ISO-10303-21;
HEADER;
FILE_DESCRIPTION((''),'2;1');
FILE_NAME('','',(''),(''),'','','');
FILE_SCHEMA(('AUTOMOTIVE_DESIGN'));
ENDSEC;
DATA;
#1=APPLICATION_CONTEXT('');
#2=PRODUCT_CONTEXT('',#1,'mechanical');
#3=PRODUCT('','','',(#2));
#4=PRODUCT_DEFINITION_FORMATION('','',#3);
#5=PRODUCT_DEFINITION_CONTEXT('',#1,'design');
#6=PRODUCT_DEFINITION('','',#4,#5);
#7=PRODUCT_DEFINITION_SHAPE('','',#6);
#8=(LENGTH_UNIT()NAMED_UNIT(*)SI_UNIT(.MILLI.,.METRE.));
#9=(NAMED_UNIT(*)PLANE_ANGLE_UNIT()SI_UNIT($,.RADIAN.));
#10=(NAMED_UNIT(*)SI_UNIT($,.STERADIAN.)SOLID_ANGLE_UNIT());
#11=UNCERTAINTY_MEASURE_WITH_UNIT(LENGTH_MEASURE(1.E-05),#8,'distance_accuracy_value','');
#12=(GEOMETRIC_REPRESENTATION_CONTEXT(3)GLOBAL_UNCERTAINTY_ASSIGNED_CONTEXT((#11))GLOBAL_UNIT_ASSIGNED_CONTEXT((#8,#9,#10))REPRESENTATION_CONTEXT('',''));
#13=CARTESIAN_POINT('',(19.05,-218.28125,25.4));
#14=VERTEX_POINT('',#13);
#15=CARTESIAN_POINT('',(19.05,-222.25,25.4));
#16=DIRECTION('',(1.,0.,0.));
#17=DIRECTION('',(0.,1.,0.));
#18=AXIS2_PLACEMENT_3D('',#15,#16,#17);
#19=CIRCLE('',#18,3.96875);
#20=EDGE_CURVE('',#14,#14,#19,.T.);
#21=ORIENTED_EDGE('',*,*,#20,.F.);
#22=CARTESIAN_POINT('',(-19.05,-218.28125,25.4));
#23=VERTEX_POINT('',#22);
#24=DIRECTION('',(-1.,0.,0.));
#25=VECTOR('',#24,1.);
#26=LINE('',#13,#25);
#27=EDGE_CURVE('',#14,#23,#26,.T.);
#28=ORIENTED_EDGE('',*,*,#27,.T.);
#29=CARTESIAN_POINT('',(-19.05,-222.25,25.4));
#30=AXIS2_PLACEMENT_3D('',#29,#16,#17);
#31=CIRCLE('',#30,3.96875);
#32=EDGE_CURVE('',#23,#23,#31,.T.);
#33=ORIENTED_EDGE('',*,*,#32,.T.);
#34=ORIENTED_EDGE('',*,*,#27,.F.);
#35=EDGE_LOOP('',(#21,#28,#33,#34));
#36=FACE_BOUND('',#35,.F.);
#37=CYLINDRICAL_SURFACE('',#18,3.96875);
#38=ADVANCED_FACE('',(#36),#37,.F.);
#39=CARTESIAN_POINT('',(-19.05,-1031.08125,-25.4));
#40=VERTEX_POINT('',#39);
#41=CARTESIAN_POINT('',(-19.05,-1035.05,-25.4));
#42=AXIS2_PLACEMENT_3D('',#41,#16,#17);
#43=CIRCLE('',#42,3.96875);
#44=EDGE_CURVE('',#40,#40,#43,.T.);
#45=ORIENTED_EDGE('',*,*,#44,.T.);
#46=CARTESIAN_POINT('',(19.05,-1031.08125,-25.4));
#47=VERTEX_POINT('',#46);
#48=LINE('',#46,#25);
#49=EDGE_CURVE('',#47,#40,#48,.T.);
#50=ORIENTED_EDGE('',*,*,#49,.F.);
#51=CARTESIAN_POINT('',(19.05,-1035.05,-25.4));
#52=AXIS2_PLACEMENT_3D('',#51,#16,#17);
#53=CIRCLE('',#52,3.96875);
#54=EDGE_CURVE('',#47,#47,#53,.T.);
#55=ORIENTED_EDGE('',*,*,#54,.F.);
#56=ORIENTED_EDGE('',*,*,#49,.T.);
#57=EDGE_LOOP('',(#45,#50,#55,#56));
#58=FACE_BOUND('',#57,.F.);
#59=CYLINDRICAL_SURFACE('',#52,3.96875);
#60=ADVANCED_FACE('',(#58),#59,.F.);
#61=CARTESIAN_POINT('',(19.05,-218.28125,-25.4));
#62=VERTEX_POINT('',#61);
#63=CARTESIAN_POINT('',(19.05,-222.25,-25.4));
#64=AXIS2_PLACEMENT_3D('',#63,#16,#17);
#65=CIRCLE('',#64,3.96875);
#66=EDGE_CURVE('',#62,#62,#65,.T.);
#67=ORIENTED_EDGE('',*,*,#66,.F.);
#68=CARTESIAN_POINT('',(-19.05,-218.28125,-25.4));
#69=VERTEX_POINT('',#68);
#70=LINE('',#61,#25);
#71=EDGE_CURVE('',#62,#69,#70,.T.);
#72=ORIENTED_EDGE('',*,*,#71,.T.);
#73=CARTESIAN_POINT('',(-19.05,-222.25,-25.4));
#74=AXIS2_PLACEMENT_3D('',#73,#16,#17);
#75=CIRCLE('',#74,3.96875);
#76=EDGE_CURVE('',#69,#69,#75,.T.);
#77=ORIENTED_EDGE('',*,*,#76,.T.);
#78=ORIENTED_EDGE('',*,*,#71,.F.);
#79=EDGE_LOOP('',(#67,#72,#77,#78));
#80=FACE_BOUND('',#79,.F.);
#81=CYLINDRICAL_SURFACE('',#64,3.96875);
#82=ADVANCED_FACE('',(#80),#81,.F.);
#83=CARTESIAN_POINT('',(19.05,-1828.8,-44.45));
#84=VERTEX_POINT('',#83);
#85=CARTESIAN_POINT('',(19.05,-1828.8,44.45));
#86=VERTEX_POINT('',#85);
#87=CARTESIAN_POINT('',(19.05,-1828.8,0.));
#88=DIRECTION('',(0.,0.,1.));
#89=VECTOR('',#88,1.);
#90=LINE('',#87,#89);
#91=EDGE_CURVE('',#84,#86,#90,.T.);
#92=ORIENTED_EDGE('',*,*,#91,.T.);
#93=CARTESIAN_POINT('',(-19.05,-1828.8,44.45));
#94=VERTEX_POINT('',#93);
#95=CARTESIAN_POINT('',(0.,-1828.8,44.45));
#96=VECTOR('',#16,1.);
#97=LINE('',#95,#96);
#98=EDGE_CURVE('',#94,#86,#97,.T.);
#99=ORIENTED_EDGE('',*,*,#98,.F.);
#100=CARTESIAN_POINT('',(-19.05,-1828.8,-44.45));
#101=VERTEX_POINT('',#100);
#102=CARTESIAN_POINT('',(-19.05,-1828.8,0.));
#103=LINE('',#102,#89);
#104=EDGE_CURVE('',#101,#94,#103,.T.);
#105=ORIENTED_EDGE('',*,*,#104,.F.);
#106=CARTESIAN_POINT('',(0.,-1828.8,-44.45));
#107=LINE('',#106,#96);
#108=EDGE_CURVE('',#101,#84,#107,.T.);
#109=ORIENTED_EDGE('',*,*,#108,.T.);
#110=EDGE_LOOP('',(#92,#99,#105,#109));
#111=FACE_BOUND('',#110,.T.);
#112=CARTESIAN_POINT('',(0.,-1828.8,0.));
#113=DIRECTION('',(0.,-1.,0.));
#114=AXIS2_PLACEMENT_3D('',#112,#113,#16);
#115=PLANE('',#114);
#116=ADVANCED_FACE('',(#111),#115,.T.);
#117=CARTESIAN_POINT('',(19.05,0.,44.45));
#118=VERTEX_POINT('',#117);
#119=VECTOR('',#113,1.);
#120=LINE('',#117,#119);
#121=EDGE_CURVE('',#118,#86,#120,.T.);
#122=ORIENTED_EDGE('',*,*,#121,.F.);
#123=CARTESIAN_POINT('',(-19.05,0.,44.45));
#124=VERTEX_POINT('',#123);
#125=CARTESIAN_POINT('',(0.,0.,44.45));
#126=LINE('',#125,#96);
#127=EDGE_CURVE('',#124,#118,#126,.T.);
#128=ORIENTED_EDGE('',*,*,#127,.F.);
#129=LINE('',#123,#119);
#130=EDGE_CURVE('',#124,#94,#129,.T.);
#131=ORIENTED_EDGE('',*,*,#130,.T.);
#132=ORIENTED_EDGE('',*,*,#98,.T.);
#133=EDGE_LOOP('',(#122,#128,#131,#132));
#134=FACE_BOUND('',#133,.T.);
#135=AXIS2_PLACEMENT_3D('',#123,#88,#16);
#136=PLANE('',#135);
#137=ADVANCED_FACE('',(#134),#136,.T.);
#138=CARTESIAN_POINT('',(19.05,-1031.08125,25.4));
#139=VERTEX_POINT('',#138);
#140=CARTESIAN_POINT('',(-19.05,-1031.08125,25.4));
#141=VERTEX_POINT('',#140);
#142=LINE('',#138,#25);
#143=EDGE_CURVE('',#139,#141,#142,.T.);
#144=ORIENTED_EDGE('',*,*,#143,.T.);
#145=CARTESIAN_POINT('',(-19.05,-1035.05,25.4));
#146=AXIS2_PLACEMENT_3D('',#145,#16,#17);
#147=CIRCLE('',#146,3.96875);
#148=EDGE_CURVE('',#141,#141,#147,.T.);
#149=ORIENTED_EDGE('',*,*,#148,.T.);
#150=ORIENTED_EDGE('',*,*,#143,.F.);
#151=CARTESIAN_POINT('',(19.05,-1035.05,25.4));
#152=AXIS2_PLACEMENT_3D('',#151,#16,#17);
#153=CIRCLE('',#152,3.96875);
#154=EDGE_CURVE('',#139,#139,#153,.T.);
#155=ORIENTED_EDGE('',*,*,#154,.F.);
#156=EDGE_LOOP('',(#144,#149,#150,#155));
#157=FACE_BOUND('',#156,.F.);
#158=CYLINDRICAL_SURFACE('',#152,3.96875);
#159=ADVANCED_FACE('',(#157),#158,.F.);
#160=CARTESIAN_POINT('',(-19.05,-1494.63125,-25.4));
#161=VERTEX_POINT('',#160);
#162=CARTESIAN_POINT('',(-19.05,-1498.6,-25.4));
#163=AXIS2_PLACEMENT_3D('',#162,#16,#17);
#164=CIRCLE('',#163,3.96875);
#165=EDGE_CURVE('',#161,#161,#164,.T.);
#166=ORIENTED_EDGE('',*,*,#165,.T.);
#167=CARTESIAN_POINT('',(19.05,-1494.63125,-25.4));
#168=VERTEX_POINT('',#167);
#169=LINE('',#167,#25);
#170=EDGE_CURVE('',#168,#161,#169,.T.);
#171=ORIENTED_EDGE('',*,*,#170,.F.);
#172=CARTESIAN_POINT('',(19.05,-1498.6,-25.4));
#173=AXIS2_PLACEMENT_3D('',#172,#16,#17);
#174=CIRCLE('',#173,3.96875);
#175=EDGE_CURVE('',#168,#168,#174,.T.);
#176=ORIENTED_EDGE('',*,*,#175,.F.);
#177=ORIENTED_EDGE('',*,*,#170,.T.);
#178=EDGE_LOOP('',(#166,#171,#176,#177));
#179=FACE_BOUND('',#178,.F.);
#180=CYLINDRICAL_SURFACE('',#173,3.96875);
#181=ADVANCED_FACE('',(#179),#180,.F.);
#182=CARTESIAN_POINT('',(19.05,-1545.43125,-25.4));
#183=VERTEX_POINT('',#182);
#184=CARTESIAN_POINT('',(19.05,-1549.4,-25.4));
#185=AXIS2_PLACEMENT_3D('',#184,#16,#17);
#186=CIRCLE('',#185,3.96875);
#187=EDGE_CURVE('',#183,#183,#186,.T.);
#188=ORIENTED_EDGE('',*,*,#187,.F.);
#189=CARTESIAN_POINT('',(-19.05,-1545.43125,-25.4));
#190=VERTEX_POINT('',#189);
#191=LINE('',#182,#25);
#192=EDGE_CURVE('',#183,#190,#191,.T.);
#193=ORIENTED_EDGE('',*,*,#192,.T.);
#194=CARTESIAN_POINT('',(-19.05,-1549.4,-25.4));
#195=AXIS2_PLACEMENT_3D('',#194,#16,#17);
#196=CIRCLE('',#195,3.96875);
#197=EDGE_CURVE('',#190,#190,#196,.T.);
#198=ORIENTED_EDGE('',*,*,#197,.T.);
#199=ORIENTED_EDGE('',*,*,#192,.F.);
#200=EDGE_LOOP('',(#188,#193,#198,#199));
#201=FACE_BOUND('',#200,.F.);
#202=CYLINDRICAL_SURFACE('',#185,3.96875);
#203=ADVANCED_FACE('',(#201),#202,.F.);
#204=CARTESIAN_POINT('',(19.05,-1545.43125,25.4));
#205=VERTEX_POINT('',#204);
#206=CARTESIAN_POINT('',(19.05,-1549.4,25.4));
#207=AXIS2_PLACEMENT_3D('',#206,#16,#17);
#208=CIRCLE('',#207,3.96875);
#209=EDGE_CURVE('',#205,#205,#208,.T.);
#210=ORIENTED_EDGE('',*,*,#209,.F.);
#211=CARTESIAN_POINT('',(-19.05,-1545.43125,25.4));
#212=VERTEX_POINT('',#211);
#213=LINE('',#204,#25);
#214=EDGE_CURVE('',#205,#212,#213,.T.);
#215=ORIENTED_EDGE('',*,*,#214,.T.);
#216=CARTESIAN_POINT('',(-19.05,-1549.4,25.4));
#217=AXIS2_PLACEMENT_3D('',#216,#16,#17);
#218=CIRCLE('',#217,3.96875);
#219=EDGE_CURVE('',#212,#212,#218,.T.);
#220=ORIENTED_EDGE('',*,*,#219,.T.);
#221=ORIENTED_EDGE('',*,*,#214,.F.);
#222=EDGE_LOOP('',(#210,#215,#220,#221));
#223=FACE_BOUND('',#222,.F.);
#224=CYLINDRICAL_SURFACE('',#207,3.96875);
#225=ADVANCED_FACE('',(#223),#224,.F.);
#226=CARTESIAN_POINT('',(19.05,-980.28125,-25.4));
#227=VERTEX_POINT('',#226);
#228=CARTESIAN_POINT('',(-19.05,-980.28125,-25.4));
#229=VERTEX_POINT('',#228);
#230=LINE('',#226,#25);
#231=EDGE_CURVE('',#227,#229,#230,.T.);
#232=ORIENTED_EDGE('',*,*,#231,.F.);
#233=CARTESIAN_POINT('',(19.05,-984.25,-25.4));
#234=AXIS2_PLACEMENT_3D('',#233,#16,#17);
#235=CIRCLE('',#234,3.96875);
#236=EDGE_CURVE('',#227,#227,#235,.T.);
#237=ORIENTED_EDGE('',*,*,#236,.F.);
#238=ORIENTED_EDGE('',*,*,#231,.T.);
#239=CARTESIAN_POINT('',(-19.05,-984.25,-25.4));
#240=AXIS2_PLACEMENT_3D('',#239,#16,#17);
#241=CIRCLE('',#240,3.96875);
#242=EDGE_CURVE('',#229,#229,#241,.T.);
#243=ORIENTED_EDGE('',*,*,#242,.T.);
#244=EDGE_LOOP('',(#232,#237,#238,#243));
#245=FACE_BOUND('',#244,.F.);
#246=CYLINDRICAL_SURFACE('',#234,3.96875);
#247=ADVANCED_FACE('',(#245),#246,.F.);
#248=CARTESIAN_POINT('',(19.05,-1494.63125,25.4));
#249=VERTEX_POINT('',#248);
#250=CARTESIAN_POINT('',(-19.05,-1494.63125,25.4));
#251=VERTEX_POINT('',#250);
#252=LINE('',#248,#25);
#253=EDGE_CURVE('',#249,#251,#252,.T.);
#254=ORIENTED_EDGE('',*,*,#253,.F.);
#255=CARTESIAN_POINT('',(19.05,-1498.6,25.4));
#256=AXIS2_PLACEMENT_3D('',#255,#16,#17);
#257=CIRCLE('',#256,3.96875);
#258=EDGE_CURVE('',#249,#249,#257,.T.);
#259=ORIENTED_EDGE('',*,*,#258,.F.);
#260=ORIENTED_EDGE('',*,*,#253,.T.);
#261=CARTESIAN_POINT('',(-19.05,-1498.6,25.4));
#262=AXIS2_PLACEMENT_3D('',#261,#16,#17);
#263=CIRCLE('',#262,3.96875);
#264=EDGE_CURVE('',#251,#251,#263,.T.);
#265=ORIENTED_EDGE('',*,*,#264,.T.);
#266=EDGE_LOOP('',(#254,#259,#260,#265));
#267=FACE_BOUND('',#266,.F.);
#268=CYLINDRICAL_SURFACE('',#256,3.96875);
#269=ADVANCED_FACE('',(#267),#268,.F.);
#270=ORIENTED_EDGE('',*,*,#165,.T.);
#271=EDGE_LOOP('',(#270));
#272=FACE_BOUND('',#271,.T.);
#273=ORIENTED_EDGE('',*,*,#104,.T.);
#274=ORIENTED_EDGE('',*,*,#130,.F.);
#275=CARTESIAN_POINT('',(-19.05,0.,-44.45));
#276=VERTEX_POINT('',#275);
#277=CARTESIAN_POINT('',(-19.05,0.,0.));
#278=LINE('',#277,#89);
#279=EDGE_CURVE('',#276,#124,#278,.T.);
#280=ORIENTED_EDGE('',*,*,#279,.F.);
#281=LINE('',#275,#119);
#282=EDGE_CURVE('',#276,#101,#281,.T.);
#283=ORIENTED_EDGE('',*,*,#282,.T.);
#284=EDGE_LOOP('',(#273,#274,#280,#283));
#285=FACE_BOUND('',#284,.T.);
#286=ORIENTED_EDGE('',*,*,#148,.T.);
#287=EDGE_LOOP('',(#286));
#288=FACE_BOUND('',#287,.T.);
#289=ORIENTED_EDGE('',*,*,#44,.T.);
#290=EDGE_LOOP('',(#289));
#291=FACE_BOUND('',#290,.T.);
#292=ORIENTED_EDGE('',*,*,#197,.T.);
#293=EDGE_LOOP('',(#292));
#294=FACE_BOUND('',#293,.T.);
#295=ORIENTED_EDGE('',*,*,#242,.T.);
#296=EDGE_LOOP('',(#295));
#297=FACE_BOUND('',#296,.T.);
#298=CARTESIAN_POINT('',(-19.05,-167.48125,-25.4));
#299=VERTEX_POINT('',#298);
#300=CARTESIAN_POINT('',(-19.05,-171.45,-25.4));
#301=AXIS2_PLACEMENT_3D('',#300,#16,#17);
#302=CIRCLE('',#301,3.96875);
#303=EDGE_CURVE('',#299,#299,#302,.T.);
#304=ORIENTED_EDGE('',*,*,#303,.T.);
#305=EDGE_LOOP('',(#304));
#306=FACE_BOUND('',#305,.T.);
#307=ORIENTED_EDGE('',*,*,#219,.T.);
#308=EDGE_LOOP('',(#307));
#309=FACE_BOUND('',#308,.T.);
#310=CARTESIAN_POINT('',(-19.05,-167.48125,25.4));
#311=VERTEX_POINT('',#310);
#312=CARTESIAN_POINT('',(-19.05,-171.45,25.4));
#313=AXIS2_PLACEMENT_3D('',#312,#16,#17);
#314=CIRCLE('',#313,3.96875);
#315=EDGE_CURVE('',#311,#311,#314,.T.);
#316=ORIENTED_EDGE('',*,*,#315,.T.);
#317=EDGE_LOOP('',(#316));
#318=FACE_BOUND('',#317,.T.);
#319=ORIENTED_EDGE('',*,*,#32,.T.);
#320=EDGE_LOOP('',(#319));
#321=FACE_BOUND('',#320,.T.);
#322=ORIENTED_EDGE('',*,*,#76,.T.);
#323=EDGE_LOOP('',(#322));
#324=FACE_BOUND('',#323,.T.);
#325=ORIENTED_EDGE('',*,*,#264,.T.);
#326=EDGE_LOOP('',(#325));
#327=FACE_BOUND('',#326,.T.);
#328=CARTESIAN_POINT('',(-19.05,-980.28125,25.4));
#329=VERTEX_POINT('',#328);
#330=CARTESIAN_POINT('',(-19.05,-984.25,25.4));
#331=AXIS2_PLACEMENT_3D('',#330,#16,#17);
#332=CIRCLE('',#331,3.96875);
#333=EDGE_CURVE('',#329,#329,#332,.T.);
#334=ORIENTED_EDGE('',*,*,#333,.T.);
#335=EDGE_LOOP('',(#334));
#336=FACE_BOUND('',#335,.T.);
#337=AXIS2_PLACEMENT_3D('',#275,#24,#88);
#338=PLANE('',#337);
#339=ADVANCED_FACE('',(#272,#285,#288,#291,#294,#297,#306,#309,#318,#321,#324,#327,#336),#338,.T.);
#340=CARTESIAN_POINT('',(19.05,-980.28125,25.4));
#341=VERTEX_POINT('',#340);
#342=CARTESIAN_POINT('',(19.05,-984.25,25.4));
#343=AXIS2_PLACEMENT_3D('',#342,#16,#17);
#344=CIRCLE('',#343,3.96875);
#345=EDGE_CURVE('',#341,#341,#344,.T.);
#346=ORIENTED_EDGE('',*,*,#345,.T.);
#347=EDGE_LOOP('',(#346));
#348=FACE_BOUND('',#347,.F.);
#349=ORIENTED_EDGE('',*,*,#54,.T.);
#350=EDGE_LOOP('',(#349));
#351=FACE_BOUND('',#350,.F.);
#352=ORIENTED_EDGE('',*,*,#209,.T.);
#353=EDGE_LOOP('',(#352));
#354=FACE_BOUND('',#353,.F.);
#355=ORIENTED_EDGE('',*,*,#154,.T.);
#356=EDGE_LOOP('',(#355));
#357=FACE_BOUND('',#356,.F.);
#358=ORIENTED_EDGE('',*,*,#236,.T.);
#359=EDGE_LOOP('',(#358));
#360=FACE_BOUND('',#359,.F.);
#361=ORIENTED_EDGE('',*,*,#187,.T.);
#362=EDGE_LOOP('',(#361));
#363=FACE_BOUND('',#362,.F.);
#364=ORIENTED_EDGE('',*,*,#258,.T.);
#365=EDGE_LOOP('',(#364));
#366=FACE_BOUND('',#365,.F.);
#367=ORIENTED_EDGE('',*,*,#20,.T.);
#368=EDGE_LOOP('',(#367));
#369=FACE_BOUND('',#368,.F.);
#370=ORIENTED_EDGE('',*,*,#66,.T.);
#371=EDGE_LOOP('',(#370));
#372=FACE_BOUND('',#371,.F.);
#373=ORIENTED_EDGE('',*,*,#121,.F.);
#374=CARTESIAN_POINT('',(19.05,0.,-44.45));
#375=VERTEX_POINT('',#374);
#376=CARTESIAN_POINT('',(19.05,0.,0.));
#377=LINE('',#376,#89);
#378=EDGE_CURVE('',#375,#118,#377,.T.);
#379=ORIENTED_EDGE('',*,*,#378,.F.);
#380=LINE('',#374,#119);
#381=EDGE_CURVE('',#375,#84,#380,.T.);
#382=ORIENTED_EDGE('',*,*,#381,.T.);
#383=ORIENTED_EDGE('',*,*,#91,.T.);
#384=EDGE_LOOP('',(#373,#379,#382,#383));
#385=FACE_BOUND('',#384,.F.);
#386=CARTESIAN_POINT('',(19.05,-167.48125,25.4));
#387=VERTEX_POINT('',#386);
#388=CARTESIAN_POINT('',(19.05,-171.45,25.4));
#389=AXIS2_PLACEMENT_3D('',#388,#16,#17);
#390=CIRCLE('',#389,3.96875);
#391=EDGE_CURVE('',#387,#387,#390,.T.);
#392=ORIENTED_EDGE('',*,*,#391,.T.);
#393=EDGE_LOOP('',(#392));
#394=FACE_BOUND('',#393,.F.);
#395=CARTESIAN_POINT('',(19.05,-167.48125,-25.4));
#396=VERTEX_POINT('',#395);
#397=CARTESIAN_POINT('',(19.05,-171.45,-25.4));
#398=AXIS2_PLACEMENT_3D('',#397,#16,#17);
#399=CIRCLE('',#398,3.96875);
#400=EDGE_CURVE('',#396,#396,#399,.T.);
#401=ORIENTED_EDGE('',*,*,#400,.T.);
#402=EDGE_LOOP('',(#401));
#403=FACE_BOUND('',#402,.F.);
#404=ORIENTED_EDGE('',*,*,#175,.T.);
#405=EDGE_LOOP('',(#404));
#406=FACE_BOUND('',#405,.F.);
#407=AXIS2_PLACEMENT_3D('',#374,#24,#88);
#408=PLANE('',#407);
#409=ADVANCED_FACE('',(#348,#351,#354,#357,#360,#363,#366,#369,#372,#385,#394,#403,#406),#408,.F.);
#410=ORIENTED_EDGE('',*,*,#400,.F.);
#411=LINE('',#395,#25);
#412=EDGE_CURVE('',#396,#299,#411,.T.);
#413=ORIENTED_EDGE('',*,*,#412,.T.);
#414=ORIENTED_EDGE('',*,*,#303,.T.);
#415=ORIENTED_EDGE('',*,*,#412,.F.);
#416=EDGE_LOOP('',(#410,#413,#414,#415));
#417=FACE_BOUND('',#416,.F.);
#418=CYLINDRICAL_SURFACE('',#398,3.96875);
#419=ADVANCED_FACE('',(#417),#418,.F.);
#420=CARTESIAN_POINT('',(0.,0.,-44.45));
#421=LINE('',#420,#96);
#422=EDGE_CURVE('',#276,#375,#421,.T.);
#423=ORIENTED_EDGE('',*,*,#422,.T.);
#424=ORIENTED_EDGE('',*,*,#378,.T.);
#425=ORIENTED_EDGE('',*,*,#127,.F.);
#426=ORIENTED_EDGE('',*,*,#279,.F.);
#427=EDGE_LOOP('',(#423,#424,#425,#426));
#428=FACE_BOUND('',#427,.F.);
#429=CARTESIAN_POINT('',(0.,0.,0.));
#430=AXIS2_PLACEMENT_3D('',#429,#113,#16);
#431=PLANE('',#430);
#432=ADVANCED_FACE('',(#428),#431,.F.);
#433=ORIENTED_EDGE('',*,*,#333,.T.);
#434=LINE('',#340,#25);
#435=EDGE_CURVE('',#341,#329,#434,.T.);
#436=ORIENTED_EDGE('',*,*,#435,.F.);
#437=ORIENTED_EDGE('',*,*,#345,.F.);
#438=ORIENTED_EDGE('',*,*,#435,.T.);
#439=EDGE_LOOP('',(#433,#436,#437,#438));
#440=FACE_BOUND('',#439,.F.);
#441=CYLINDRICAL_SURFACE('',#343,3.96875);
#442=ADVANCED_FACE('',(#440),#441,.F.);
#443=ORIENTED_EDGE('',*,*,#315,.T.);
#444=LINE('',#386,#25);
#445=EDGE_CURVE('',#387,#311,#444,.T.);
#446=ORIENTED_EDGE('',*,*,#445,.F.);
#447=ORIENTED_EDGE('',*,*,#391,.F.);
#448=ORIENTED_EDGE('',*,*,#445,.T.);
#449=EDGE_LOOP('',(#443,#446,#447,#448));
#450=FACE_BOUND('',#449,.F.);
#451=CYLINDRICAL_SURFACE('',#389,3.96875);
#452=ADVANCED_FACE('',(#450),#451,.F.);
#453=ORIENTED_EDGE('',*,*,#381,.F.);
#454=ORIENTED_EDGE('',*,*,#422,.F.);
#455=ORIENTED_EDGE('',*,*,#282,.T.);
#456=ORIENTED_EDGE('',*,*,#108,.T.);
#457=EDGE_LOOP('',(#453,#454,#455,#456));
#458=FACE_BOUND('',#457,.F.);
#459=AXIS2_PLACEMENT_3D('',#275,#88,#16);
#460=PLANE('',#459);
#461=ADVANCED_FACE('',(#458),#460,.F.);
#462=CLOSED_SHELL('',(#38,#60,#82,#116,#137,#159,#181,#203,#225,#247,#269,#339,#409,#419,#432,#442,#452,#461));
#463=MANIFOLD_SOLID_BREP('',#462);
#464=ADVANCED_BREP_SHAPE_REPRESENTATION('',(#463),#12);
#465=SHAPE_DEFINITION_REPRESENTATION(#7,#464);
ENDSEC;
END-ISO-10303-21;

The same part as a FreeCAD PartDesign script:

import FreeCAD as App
import Part
import Sketcher

V = App.Vector
Q = App.Units.Quantity

doc = App.newDocument("Part")
body = doc.addObject("PartDesign::Body", "Body")

# Sketch on XZ plane
sketch1 = doc.addObject("Sketcher::SketchObject", "Sketch")
body.addObject(sketch1)
sketch1.AttachmentSupport = (doc.XZ_Plane, [""])
sketch1.MapMode = "FlatFace"
sketch1.addGeometry([
    Part.LineSegment(V(-19, 44, 0), V(-19, -44, 0)),
    Part.LineSegment(V(-19, -44, 0), V(19, -44, 0)),
    Part.LineSegment(V(19, -44, 0), V(19, 44, 0)),
    Part.LineSegment(V(19, 44, 0), V(-19, 44, 0)),
], False)
sketch1.addConstraint([
    Sketcher.Constraint("Coincident", 0, 2, 1, 1),
    Sketcher.Constraint("Coincident", 1, 2, 2, 1),
    Sketcher.Constraint("Coincident", 2, 2, 3, 1),
    Sketcher.Constraint("Coincident", 3, 2, 0, 1),
    Sketcher.Constraint("Vertical", 0),
    Sketcher.Constraint("Horizontal", 1),
    Sketcher.Constraint("Vertical", 2),
    Sketcher.Constraint("Horizontal", 3),
    Sketcher.Constraint("Symmetric", 0, 2, 2, 2, -1, 1),
    Sketcher.Constraint("DistanceX", 1, 1, 1, 2, Q("1.5 in")),
    Sketcher.Constraint("DistanceY", 0, 2, 0, 1, Q("3.5 in")),
])
pad1 = doc.addObject("PartDesign::Pad", "Pad")
body.addObject(pad1)
pad1.Profile = sketch1
pad1.Length = Q("72 in")

# Sketch on YZ plane
sketch2 = doc.addObject("Sketcher::SketchObject", "Sketch001")
body.addObject(sketch2)
sketch2.AttachmentSupport = (doc.YZ_Plane, [""])
sketch2.MapMode = "FlatFace"
sketch2.AttachmentOffset = App.Placement(V(0, 0, 0.75 * 25.4), App.Rotation())
sketch2.addGeometry([
    Part.Circle(V(-1498.6, 25.4, 0), V(0, 0, 1), 4),  # 0
    Part.Circle(V(-1498.6, -25.4, 0), V(0, 0, 1), 4),  # 1
    Part.Circle(V(-1549.4, -25.4, 0), V(0, 0, 1), 4),  # 2
    Part.Circle(V(-1549.4, 25.4, 0), V(0, 0, 1), 4),  # 3
    Part.Circle(V(-1035, 25.4, 0), V(0, 0, 1), 4),  # 4
    Part.Circle(V(-1035, -25.4, 0), V(0, 0, 1), 4),  # 5
    Part.Circle(V(-984.2, -25.4, 0), V(0, 0, 1), 4),  # 6
    Part.Circle(V(-984.2, 25.4, 0), V(0, 0, 1), 4),  # 7
    Part.Circle(V(-222.2, 25.4, 0), V(0, 0, 1), 4),  # 8
    Part.Circle(V(-171.4, 25.4, 0), V(0, 0, 1), 4),  # 9
    Part.Circle(V(-171.4, -25.4, 0), V(0, 0, 1), 4),  # 10
    Part.Circle(V(-222.2, -25.4, 0), V(0, 0, 1), 4),  # 11
], False)
sketch2.addConstraint([
    Sketcher.Constraint("Equal", 0, 1),
    Sketcher.Constraint("Equal", 1, 2),
    Sketcher.Constraint("Equal", 2, 3),
    Sketcher.Constraint("Equal", 3, 4),
    Sketcher.Constraint("Equal", 4, 5),
    Sketcher.Constraint("Equal", 5, 6),
    Sketcher.Constraint("Equal", 6, 7),
    Sketcher.Constraint("Equal", 7, 8),
    Sketcher.Constraint("Equal", 8, 9),
    Sketcher.Constraint("Equal", 9, 10),
    Sketcher.Constraint("Equal", 10, 11),
    Sketcher.Constraint("Symmetric", 0, 3, 1, 3, -1),
    Sketcher.Constraint("Symmetric", 2, 3, 3, 3, -1),
    Sketcher.Constraint("Symmetric", 4, 3, 5, 3, -1),
    Sketcher.Constraint("Symmetric", 6, 3, 7, 3, -1),
    Sketcher.Constraint("Symmetric", 9, 3, 10, 3, -1),
    Sketcher.Constraint("Symmetric", 8, 3, 11, 3, -1),
    Sketcher.Constraint("Horizontal", 1, 3, 2, 3),
    Sketcher.Constraint("Horizontal", 3, 3, 4, 3),
    Sketcher.Constraint("Horizontal", 5, 3, 6, 3),
    Sketcher.Constraint("Horizontal", 7, 3, 8, 3),
    Sketcher.Constraint("Horizontal", 8, 3, 9, 3),
    Sketcher.Constraint("Diameter", 0, Q("0.3125 in")),
    Sketcher.Constraint("DistanceX", 0, 3, -1, 1, Q("59 in")),
    Sketcher.Constraint("DistanceY", -1, 1, 0, 3, Q("1 in")),
    Sketcher.Constraint("DistanceX", 2, 3, -1, 1, Q("61 in")),
    Sketcher.Constraint("DistanceX", 5, 3, 6, 3, Q("2 in")),
    Sketcher.Constraint("DistanceX", 7, 3, 8, 3, Q("30 in")),
    Sketcher.Constraint("DistanceX", 8, 3, 9, 3, Q("2 in")),
    Sketcher.Constraint("DistanceX", 4, 3, -1, 1, Q("40.75 in")),
])
pocket1 = doc.addObject("PartDesign::Pocket", "Pocket")
body.addObject(pocket1)
pocket1.Profile = sketch2
pocket1.Type = "ThroughAll"

doc.recompute()
